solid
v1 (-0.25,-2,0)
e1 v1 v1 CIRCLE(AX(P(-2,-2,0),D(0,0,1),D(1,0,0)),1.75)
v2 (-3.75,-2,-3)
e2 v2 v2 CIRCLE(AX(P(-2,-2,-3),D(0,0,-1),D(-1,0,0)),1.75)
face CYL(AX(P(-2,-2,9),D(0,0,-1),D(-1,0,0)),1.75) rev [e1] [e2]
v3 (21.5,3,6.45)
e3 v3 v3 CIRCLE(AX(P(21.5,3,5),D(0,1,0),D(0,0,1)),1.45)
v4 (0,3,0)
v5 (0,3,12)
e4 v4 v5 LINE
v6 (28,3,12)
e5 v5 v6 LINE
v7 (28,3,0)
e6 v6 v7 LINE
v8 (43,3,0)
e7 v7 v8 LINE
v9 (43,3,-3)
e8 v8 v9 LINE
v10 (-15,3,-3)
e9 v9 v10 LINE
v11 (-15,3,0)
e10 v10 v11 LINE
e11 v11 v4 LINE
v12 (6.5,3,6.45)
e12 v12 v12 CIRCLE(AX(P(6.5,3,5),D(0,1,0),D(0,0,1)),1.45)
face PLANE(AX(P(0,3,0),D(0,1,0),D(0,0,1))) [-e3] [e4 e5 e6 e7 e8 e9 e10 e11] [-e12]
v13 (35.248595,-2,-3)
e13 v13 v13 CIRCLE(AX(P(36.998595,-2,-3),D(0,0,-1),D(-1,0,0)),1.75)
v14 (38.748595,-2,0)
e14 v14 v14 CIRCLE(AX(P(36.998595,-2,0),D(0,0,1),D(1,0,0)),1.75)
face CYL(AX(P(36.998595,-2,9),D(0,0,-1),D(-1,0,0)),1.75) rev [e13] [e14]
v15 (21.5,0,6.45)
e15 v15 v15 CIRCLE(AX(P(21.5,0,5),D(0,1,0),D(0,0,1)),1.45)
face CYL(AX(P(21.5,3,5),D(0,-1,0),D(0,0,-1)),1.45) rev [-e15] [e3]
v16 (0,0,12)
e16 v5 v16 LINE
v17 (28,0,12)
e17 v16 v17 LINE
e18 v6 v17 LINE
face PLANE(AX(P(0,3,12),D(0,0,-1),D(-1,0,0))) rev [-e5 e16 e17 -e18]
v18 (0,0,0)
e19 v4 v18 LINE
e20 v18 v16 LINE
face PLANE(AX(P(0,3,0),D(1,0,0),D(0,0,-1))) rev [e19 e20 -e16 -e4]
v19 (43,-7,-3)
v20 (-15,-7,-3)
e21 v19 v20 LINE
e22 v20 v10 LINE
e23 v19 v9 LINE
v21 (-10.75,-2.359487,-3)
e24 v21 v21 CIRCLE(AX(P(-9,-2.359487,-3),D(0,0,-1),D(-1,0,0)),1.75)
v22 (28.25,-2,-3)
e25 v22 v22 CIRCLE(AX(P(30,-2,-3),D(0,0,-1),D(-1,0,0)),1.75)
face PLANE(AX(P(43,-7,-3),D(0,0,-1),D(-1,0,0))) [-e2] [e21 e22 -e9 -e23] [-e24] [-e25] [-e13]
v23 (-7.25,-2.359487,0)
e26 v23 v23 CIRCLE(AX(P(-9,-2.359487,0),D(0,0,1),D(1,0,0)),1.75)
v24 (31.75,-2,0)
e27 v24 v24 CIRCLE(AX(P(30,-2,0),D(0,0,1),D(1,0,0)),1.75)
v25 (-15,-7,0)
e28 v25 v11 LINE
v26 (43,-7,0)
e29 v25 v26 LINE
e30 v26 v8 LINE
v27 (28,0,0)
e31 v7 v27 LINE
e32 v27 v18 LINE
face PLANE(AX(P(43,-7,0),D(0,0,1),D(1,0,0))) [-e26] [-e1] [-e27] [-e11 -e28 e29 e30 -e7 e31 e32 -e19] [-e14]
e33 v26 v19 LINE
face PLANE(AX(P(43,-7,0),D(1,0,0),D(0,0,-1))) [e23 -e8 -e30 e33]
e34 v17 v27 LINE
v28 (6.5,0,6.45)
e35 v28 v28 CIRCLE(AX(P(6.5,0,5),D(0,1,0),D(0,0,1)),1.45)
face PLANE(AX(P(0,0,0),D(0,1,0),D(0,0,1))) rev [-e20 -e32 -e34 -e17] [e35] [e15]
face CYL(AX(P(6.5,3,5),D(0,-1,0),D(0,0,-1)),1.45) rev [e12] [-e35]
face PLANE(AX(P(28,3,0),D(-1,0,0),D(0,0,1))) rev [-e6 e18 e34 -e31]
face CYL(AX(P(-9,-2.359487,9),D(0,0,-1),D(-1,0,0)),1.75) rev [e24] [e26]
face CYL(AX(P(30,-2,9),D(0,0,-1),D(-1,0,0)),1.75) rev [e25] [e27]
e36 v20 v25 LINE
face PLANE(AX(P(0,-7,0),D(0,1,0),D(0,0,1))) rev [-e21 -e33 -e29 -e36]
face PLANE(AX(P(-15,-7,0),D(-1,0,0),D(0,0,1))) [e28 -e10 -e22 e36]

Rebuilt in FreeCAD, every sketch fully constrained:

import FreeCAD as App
import Part
import Sketcher
from FreeCAD import Vector
Q = App.Units.Quantity


def add_polygon(sketch, points):
    """Adds a closed chain of lines whose ends are joined by coincident constraints."""
    first, n = sketch.GeometryCount, len(points)
    for a, b in zip(points, points[1:] + points[:1]):
        sketch.addGeometry(Part.LineSegment(App.Vector(*a, 0), App.Vector(*b, 0)), False)
    for i in range(n):
        sketch.addConstraint(Sketcher.Constraint("Coincident", first + i, 2, first + (i + 1) % n, 1))

doc = App.newDocument("Part")
params = doc.addObject("Spreadsheet::Sheet", "Params")
for row, (alias, value) in enumerate([
    ("sketch1_diameter", "2.9 mm"),
    ("sketch1_width", "28 mm"),
    ("sketch1_height", "12 mm"),
    ("pad1_length", "3 mm"),
    ("sketch2_width", "58 mm"),
    ("sketch2_height", "3 mm"),
    ("pad2_length", "10 mm"),
    ("sketch3_diameter", "3.5 mm"),
    ("pocket1_length", "12 mm"),
], start=1):
    params.set(f"A{row}", alias)
    params.set(f"B{row}", "=" + value)
    params.setAlias(f"B{row}", alias)

body = doc.addObject("PartDesign::Body", "Body")

sketch1 = body.newObject("Sketcher::SketchObject", "Sketch")
sketch1.AttachmentSupport = (doc.getObject("XZ_Plane"), [""])
sketch1.MapMode = "FlatFace"
add_polygon(sketch1, [(0, 0), (0, 12), (28, 12), (28, 0)])
sketch1.addGeometry(Part.Circle(Vector(6.5, 5, 0), Vector(0, 0, 1), 1.4), False)
sketch1.addGeometry(Part.Circle(Vector(21.5, 5, 0), Vector(0, 0, 1), 1.4), False)
sketch1.addConstraint([
    Sketcher.Constraint("Vertical", 0),
    Sketcher.Constraint("Horizontal", 1),
    Sketcher.Constraint("Vertical", 2),
    Sketcher.Constraint("Horizontal", 3),
    Sketcher.Constraint("Coincident", 3, 2, -1, 1),
    Sketcher.Constraint("Equal", 4, 5),
    Sketcher.Constraint("Horizontal", 4, 3, 5, 3),
    Sketcher.Constraint("Diameter", 4, Q("2.9 mm")),
    Sketcher.Constraint("DistanceX", 1, 1, 1, 2, Q("28 mm")),
    Sketcher.Constraint("DistanceY", 0, 1, 0, 2, Q("12 mm")),
    Sketcher.Constraint("DistanceY", -1, 1, 4, 3, Q("5 mm")),
    Sketcher.Constraint("DistanceX", 4, 3, 5, 3, Q("15 mm")),
    Sketcher.Constraint("DistanceX", -1, 1, 4, 3, Q("6.5 mm")),
])
sketch1.setExpression("Constraints[11]", "Params.sketch1_diameter")
sketch1.setExpression("Constraints[12]", "Params.sketch1_width")
sketch1.setExpression("Constraints[13]", "Params.sketch1_height")
pad1 = body.newObject("PartDesign::Pad", "Pad")
pad1.Profile = sketch1
pad1.setExpression("Length", "Params.pad1_length")
pad1.Reversed = True

sketch2 = body.newObject("Sketcher::SketchObject", "Sketch001")
sketch2.AttachmentSupport = (doc.getObject("XZ_Plane"), [""])
sketch2.MapMode = "FlatFace"
sketch2.AttachmentOffset = App.Placement(Vector(0, 0, -3), App.Rotation())
add_polygon(sketch2, [(-15, -3), (-15, 0), (43, 0), (43, -3)])
sketch2.addConstraint([
    Sketcher.Constraint("Vertical", 0),
    Sketcher.Constraint("Horizontal", 1),
    Sketcher.Constraint("Vertical", 2),
    Sketcher.Constraint("Horizontal", 3),
    Sketcher.Constraint("PointOnObject", 0, 2, -1),
    Sketcher.Constraint("DistanceX", 1, 1, 1, 2, Q("58 mm")),
    Sketcher.Constraint("DistanceY", 0, 1, 0, 2, Q("3 mm")),
    Sketcher.Constraint("DistanceX", 0, 2, -1, 1, Q("15 mm")),
])
sketch2.setExpression("Constraints[9]", "Params.sketch2_width")
sketch2.setExpression("Constraints[10]", "Params.sketch2_height")
pad2 = body.newObject("PartDesign::Pad", "Pad001")
pad2.Profile = sketch2
pad2.setExpression("Length", "Params.pad2_length")

sketch3 = body.newObject("Sketcher::SketchObject", "Sketch002")
sketch3.AttachmentSupport = (doc.getObject("XY_Plane"), [""])
sketch3.MapMode = "FlatFace"
sketch3.AttachmentOffset = App.Placement(Vector(0, 0, -3), App.Rotation())
sketch3.addGeometry([
    Part.Circle(Vector(-9, -2.4, 0), Vector(0, 0, 1), 1.8),
    Part.Circle(Vector(37, -2, 0), Vector(0, 0, 1), 1.8),
    Part.Circle(Vector(-2, -2, 0), Vector(0, 0, 1), 1.8),
    Part.Circle(Vector(30, -2, 0), Vector(0, 0, 1), 1.8),
], False)
sketch3.addConstraint([
    Sketcher.Constraint("Equal", 0, 1),
    Sketcher.Constraint("Equal", 1, 2),
    Sketcher.Constraint("Equal", 2, 3),
    Sketcher.Constraint("Horizontal", 1, 3, 2, 3),
    Sketcher.Constraint("Horizontal", 2, 3, 3, 3),
    Sketcher.Constraint("Diameter", 0, Q("3.5 mm")),
    Sketcher.Constraint("DistanceX", 0, 3, -1, 1, Q("9 mm")),
    Sketcher.Constraint("DistanceY", 1, 3, -1, 1, Q("2 mm")),
    Sketcher.Constraint("DistanceX", 2, 3, -1, 1, Q("2 mm")),
    Sketcher.Constraint("DistanceX", -1, 1, 3, 3, Q("30 mm")),
    Sketcher.Constraint("DistanceY", 0, 3, -1, 1, Q("2.359487 mm")),
    Sketcher.Constraint("DistanceX", -1, 1, 1, 3, Q("36.998595 mm")),
])
sketch3.setExpression("Constraints[5]", "Params.sketch3_diameter")
pocket1 = body.newObject("PartDesign::Pocket", "Pocket")
pocket1.Profile = sketch3
pocket1.setExpression("Length", "Params.pocket1_length")
pocket1.Reversed = True

doc.recompute()
